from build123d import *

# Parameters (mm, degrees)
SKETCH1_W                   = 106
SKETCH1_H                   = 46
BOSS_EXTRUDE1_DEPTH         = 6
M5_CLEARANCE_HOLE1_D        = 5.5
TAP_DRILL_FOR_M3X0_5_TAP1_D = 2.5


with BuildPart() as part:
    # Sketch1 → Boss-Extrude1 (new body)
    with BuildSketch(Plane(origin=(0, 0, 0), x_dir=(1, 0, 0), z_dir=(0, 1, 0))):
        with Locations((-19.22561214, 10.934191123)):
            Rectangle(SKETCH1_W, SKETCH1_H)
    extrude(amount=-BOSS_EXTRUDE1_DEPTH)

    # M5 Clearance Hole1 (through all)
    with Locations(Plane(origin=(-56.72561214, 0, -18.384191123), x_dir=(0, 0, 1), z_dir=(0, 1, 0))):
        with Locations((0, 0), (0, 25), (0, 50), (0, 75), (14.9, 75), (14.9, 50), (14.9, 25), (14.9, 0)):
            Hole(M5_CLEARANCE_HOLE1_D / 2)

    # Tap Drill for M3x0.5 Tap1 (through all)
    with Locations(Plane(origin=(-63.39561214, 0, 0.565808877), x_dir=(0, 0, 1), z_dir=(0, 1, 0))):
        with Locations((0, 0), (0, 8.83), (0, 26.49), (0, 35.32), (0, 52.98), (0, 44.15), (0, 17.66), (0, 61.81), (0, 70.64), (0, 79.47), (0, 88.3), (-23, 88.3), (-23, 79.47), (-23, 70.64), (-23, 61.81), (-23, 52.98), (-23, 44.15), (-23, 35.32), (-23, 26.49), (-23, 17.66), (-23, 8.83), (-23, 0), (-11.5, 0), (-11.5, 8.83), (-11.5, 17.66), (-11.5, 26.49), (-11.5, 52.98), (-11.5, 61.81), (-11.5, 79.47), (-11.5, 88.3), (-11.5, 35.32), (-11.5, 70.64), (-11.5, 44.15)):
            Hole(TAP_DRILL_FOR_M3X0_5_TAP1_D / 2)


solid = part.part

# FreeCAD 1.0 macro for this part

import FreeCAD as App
import Part
import Sketcher
from FreeCAD import Vector
Q = App.Units.Quantity

doc = App.newDocument("Part")
body = doc.addObject("PartDesign::Body", "Body")

sketch1 = body.newObject("Sketcher::SketchObject", "Sketch")
sketch1.AttachmentSupport = (doc.getObject("XZ_Plane"), [""])
sketch1.MapMode = "FlatFace"
sketch1.addGeometry([
    Part.LineSegment(Vector(-72, -34, 0), Vector(-72, 12, 0)),
    Part.LineSegment(Vector(-72, 12, 0), Vector(34, 12, 0)),
    Part.LineSegment(Vector(34, 12, 0), Vector(34, -34, 0)),
    Part.LineSegment(Vector(34, -34, 0), Vector(-72, -34, 0)),
], False)
sketch1.addConstraint([
    Sketcher.Constraint("Coincident", 0, 2, 1, 1),
    Sketcher.Constraint("Coincident", 1, 2, 2, 1),
    Sketcher.Constraint("Coincident", 2, 2, 3, 1),
    Sketcher.Constraint("Coincident", 3, 2, 0, 1),
    Sketcher.Constraint("Vertical", 0),
    Sketcher.Constraint("Horizontal", 1),
    Sketcher.Constraint("Vertical", 2),
    Sketcher.Constraint("Horizontal", 3),
    Sketcher.Constraint("DistanceX", 1, 1, 1, 2, Q("106 mm")),
    Sketcher.Constraint("DistanceY", 0, 1, 0, 2, Q("46 mm")),
    Sketcher.Constraint("DistanceY", -1, 1, 0, 2, Q("12.065809 mm")),
    Sketcher.Constraint("DistanceX", 0, 2, -1, 1, Q("72.225612 mm")),
])
pad1 = body.newObject("PartDesign::Pad", "Pad")
pad1.Profile = sketch1
pad1.Length = 6

sketch2 = body.newObject("Sketcher::SketchObject", "Sketch001")
sketch2.AttachmentSupport = (doc.getObject("XZ_Plane"), [""])
sketch2.MapMode = "FlatFace"
sketch2.addGeometry([
    Part.Circle(Vector(-56.7, -18.4, 0), Vector(0, 0, 1), 2.8),
    Part.Circle(Vector(-31.7, -18.4, 0), Vector(0, 0, 1), 2.8),
    Part.Circle(Vector(-6.7, -18.4, 0), Vector(0, 0, 1), 2.8),
    Part.Circle(Vector(18.3, -18.4, 0), Vector(0, 0, 1), 2.8),
    Part.Circle(Vector(18.3, -3.5, 0), Vector(0, 0, 1), 2.8),
    Part.Circle(Vector(-6.7, -3.5, 0), Vector(0, 0, 1), 2.8),
    Part.Circle(Vector(-31.7, -3.5, 0), Vector(0, 0, 1), 2.8),
    Part.Circle(Vector(-56.7, -3.5, 0), Vector(0, 0, 1), 2.8),
], False)
sketch2.addConstraint([
    Sketcher.Constraint("Equal", 0, 1),
    Sketcher.Constraint("Equal", 1, 2),
    Sketcher.Constraint("Equal", 2, 3),
    Sketcher.Constraint("Equal", 3, 4),
    Sketcher.Constraint("Equal", 4, 5),
    Sketcher.Constraint("Equal", 5, 6),
    Sketcher.Constraint("Equal", 6, 7),
    Sketcher.Constraint("Horizontal", 0, 3, 1, 3),
    Sketcher.Constraint("Horizontal", 1, 3, 2, 3),
    Sketcher.Constraint("Horizontal", 2, 3, 3, 3),
    Sketcher.Constraint("Horizontal", 4, 3, 5, 3),
    Sketcher.Constraint("Horizontal", 5, 3, 6, 3),
    Sketcher.Constraint("Horizontal", 6, 3, 7, 3),
    Sketcher.Constraint("Vertical", 3, 3, 4, 3),
    Sketcher.Constraint("Vertical", 2, 3, 5, 3),
    Sketcher.Constraint("Vertical", 1, 3, 6, 3),
    Sketcher.Constraint("Vertical", 0, 3, 7, 3),
    Sketcher.Constraint("Diameter", 0, Q("5.5 mm")),
    Sketcher.Constraint("DistanceX", 0, 3, 1, 3, Q("25 mm")),
    Sketcher.Constraint("DistanceX", 1, 3, 2, 3, Q("25 mm")),
    Sketcher.Constraint("DistanceX", 2, 3, 3, 3, Q("25 mm")),
    Sketcher.Constraint("DistanceY", 3, 3, 4, 3, Q("14.9 mm")),
    Sketcher.Constraint("DistanceY", 0, 3, -1, 1, Q("18.384191 mm")),
    Sketcher.Constraint("DistanceX", 0, 3, -1, 1, Q("56.725612 mm")),
])
doc.recompute()
hole = body.newObject("PartDesign::Hole", "Hole")
hole.Profile = sketch2
hole.ThreadType = "None"
hole.Diameter = 5.5
hole.DepthType = "ThroughAll"
hole.Reversed = True

sketch3 = body.newObject("Sketcher::SketchObject", "Sketch002")
sketch3.AttachmentSupport = (doc.getObject("XZ_Plane"), [""])
sketch3.MapMode = "FlatFace"
sketch3.addGeometry([
    Part.Circle(Vector(-63.4, 0.6, 0), Vector(0, 0, 1), 1.2),
    Part.Circle(Vector(-54.6, 0.6, 0), Vector(0, 0, 1), 1.2),
    Part.Circle(Vector(-36.9, 0.6, 0), Vector(0, 0, 1), 1.2),
    Part.Circle(Vector(-28.1, 0.6, 0), Vector(0, 0, 1), 1.2),
    Part.Circle(Vector(-10.4, 0.6, 0), Vector(0, 0, 1), 1.2),
    Part.Circle(Vector(-19.2, 0.6, 0), Vector(0, 0, 1), 1.2),
    Part.Circle(Vector(-45.7, 0.6, 0), Vector(0, 0, 1), 1.2),
    Part.Circle(Vector(-1.6, 0.6, 0), Vector(0, 0, 1), 1.2),
    Part.Circle(Vector(7.2, 0.6, 0), Vector(0, 0, 1), 1.2),
    Part.Circle(Vector(16.1, 0.6, 0), Vector(0, 0, 1), 1.2),
    Part.Circle(Vector(24.9, 0.6, 0), Vector(0, 0, 1), 1.2),
    Part.Circle(Vector(24.9, -22.4, 0), Vector(0, 0, 1), 1.2),
    Part.Circle(Vector(16.1, -22.4, 0), Vector(0, 0, 1), 1.2),
    Part.Circle(Vector(7.2, -22.4, 0), Vector(0, 0, 1), 1.2),
    Part.Circle(Vector(-1.6, -22.4, 0), Vector(0, 0, 1), 1.2),
    Part.Circle(Vector(-10.4, -22.4, 0), Vector(0, 0, 1), 1.2),
    Part.Circle(Vector(-19.2, -22.4, 0), Vector(0, 0, 1), 1.2),
    Part.Circle(Vector(-28.1, -22.4, 0), Vector(0, 0, 1), 1.2),
    Part.Circle(Vector(-36.9, -22.4, 0), Vector(0, 0, 1), 1.2),
    Part.Circle(Vector(-45.7, -22.4, 0), Vector(0, 0, 1), 1.2),
    Part.Circle(Vector(-54.6, -22.4, 0), Vector(0, 0, 1), 1.2),
    Part.Circle(Vector(-63.4, -22.4, 0), Vector(0, 0, 1), 1.2),
    Part.Circle(Vector(-63.4, -10.9, 0), Vector(0, 0, 1), 1.2),
    Part.Circle(Vector(-54.6, -10.9, 0), Vector(0, 0, 1), 1.2),
    Part.Circle(Vector(-45.7, -10.9, 0), Vector(0, 0, 1), 1.2),
    Part.Circle(Vector(-36.9, -10.9, 0), Vector(0, 0, 1), 1.2),
    Part.Circle(Vector(-10.4, -10.9, 0), Vector(0, 0, 1), 1.2),
    Part.Circle(Vector(-1.6, -10.9, 0), Vector(0, 0, 1), 1.2),
    Part.Circle(Vector(16.1, -10.9, 0), Vector(0, 0, 1), 1.2),
    Part.Circle(Vector(24.9, -10.9, 0), Vector(0, 0, 1), 1.2),
    Part.Circle(Vector(-28.1, -10.9, 0), Vector(0, 0, 1), 1.2),
    Part.Circle(Vector(7.2, -10.9, 0), Vector(0, 0, 1), 1.2),
    Part.Circle(Vector(-19.2, -10.9, 0), Vector(0, 0, 1), 1.2),
], False)
sketch3.addConstraint([
    Sketcher.Constraint("Equal", 0, 1),
    Sketcher.Constraint("Equal", 1, 2),
    Sketcher.Constraint("Equal", 2, 3),
    Sketcher.Constraint("Equal", 3, 4),
    Sketcher.Constraint("Equal", 4, 5),
    Sketcher.Constraint("Equal", 5, 6),
    Sketcher.Constraint("Equal", 6, 7),
    Sketcher.Constraint("Equal", 7, 8),
    Sketcher.Constraint("Equal", 8, 9),
    Sketcher.Constraint("Equal", 9, 10),
    Sketcher.Constraint("Equal", 10, 11),
    Sketcher.Constraint("Equal", 11, 12),
    Sketcher.Constraint("Equal", 12, 13),
    Sketcher.Constraint("Equal", 13, 14),
    Sketcher.Constraint("Equal", 14, 15),
    Sketcher.Constraint("Equal", 15, 16),
    Sketcher.Constraint("Equal", 16, 17),
    Sketcher.Constraint("Equal", 17, 18),
    Sketcher.Constraint("Equal", 18, 19),
    Sketcher.Constraint("Equal", 19, 20),
    Sketcher.Constraint("Equal", 20, 21),
    Sketcher.Constraint("Equal", 21, 22),
    Sketcher.Constraint("Equal", 22, 23),
    Sketcher.Constraint("Equal", 23, 24),
    Sketcher.Constraint("Equal", 24, 25),
    Sketcher.Constraint("Equal", 25, 26),
    Sketcher.Constraint("Equal", 26, 27),
    Sketcher.Constraint("Equal", 27, 28),
    Sketcher.Constraint("Equal", 28, 29),
    Sketcher.Constraint("Equal", 29, 30),
    Sketcher.Constraint("Equal", 30, 31),
    Sketcher.Constraint("Equal", 31, 32),
    Sketcher.Constraint("Horizontal", 0, 3, 1, 3),
    Sketcher.Constraint("Horizontal", 1, 3, 2, 3),
    Sketcher.Constraint("Horizontal", 2, 3, 3, 3),
    Sketcher.Constraint("Horizontal", 3, 3, 4, 3),
    Sketcher.Constraint("Horizontal", 4, 3, 5, 3),
    Sketcher.Constraint("Horizontal", 5, 3, 6, 3),
    Sketcher.Constraint("Horizontal", 6, 3, 7, 3),
    Sketcher.Constraint("Horizontal", 7, 3, 8, 3),
    Sketcher.Constraint("Horizontal", 8, 3, 9, 3),
    Sketcher.Constraint("Horizontal", 9, 3, 10, 3),
    Sketcher.Constraint("Horizontal", 11, 3, 12, 3),
    Sketcher.Constraint("Horizontal", 12, 3, 13, 3),
    Sketcher.Constraint("Horizontal", 13, 3, 14, 3),
    Sketcher.Constraint("Horizontal", 14, 3, 15, 3),
    Sketcher.Constraint("Horizontal", 15, 3, 16, 3),
    Sketcher.Constraint("Horizontal", 16, 3, 17, 3),
    Sketcher.Constraint("Horizontal", 17, 3, 18, 3),
    Sketcher.Constraint("Horizontal", 18, 3, 19, 3),
    Sketcher.Constraint("Horizontal", 19, 3, 20, 3),
    Sketcher.Constraint("Horizontal", 20, 3, 21, 3),
    Sketcher.Constraint("Horizontal", 22, 3, 23, 3),
    Sketcher.Constraint("Horizontal", 23, 3, 24, 3),
    Sketcher.Constraint("Horizontal", 24, 3, 25, 3),
    Sketcher.Constraint("Horizontal", 25, 3, 26, 3),
    Sketcher.Constraint("Horizontal", 26, 3, 27, 3),
    Sketcher.Constraint("Horizontal", 27, 3, 28, 3),
    Sketcher.Constraint("Horizontal", 28, 3, 29, 3),
    Sketcher.Constraint("Horizontal", 29, 3, 30, 3),
    Sketcher.Constraint("Horizontal", 30, 3, 31, 3),
    Sketcher.Constraint("Horizontal", 31, 3, 32, 3),
    Sketcher.Constraint("Vertical", 10, 3, 11, 3),
    Sketcher.Constraint("Vertical", 9, 3, 12, 3),
    Sketcher.Constraint("Vertical", 8, 3, 13, 3),
    Sketcher.Constraint("Vertical", 7, 3, 14, 3),
    Sketcher.Constraint("Vertical", 4, 3, 15, 3),
    Sketcher.Constraint("Vertical", 5, 3, 16, 3),
    Sketcher.Constraint("Vertical", 3, 3, 17, 3),
    Sketcher.Constraint("Vertical", 2, 3, 18, 3),
    Sketcher.Constraint("Vertical", 6, 3, 19, 3),
    Sketcher.Constraint("Vertical", 1, 3, 20, 3),
    Sketcher.Constraint("Vertical", 0, 3, 21, 3),
    Sketcher.Constraint("Vertical", 21, 3, 22, 3),
    Sketcher.Constraint("Vertical", 20, 3, 23, 3),
    Sketcher.Constraint("Vertical", 19, 3, 24, 3),
    Sketcher.Constraint("Vertical", 18, 3, 25, 3),
    Sketcher.Constraint("Vertical", 15, 3, 26, 3),
    Sketcher.Constraint("Vertical", 14, 3, 27, 3),
    Sketcher.Constraint("Vertical", 12, 3, 28, 3),
    Sketcher.Constraint("Vertical", 11, 3, 29, 3),
    Sketcher.Constraint("Vertical", 17, 3, 30, 3),
    Sketcher.Constraint("Vertical", 13, 3, 31, 3),
    Sketcher.Constraint("Vertical", 16, 3, 32, 3),
    Sketcher.Constraint("Diameter", 0, Q("2.5 mm")),
    Sketcher.Constraint("DistanceY", 11, 3, 10, 3, Q("23 mm")),
    Sketcher.Constraint("DistanceY", 22, 3, 0, 3, Q("11.5 mm")),
    Sketcher.Constraint("DistanceX", 0, 3, 1, 3, Q("8.83 mm")),
    Sketcher.Constraint("DistanceX", 1, 3, 2, 3, Q("17.66 mm")),
    Sketcher.Constraint("DistanceX", 2, 3, 3, 3, Q("8.83 mm")),
    Sketcher.Constraint("DistanceX", 3, 3, 4, 3, Q("17.66 mm")),
    Sketcher.Constraint("DistanceX", 5, 3, 4, 3, Q("8.83 mm")),
    Sketcher.Constraint("DistanceX", 1, 3, 6, 3, Q("8.83 mm")),
    Sketcher.Constraint("DistanceX", 4, 3, 7, 3, Q("8.83 mm")),
    Sketcher.Constraint("DistanceX", 7, 3, 8, 3, Q("8.83 mm")),
    Sketcher.Constraint("DistanceX", 8, 3, 9, 3, Q("8.83 mm")),
    Sketcher.Constraint("DistanceX", 9, 3, 10, 3, Q("8.83 mm")),
    Sketcher.Constraint("DistanceY", -1, 1, 0, 3, Q("0.565809 mm")),
    Sketcher.Constraint("DistanceX", 0, 3, -1, 1, Q("63.395612 mm")),
])
doc.recompute()
hole2 = body.newObject("PartDesign::Hole", "Hole001")
hole2.Profile = sketch3
hole2.ThreadType = "None"
hole2.Diameter = 2.5
hole2.DepthType = "ThroughAll"
hole2.Reversed = True

doc.recompute()
